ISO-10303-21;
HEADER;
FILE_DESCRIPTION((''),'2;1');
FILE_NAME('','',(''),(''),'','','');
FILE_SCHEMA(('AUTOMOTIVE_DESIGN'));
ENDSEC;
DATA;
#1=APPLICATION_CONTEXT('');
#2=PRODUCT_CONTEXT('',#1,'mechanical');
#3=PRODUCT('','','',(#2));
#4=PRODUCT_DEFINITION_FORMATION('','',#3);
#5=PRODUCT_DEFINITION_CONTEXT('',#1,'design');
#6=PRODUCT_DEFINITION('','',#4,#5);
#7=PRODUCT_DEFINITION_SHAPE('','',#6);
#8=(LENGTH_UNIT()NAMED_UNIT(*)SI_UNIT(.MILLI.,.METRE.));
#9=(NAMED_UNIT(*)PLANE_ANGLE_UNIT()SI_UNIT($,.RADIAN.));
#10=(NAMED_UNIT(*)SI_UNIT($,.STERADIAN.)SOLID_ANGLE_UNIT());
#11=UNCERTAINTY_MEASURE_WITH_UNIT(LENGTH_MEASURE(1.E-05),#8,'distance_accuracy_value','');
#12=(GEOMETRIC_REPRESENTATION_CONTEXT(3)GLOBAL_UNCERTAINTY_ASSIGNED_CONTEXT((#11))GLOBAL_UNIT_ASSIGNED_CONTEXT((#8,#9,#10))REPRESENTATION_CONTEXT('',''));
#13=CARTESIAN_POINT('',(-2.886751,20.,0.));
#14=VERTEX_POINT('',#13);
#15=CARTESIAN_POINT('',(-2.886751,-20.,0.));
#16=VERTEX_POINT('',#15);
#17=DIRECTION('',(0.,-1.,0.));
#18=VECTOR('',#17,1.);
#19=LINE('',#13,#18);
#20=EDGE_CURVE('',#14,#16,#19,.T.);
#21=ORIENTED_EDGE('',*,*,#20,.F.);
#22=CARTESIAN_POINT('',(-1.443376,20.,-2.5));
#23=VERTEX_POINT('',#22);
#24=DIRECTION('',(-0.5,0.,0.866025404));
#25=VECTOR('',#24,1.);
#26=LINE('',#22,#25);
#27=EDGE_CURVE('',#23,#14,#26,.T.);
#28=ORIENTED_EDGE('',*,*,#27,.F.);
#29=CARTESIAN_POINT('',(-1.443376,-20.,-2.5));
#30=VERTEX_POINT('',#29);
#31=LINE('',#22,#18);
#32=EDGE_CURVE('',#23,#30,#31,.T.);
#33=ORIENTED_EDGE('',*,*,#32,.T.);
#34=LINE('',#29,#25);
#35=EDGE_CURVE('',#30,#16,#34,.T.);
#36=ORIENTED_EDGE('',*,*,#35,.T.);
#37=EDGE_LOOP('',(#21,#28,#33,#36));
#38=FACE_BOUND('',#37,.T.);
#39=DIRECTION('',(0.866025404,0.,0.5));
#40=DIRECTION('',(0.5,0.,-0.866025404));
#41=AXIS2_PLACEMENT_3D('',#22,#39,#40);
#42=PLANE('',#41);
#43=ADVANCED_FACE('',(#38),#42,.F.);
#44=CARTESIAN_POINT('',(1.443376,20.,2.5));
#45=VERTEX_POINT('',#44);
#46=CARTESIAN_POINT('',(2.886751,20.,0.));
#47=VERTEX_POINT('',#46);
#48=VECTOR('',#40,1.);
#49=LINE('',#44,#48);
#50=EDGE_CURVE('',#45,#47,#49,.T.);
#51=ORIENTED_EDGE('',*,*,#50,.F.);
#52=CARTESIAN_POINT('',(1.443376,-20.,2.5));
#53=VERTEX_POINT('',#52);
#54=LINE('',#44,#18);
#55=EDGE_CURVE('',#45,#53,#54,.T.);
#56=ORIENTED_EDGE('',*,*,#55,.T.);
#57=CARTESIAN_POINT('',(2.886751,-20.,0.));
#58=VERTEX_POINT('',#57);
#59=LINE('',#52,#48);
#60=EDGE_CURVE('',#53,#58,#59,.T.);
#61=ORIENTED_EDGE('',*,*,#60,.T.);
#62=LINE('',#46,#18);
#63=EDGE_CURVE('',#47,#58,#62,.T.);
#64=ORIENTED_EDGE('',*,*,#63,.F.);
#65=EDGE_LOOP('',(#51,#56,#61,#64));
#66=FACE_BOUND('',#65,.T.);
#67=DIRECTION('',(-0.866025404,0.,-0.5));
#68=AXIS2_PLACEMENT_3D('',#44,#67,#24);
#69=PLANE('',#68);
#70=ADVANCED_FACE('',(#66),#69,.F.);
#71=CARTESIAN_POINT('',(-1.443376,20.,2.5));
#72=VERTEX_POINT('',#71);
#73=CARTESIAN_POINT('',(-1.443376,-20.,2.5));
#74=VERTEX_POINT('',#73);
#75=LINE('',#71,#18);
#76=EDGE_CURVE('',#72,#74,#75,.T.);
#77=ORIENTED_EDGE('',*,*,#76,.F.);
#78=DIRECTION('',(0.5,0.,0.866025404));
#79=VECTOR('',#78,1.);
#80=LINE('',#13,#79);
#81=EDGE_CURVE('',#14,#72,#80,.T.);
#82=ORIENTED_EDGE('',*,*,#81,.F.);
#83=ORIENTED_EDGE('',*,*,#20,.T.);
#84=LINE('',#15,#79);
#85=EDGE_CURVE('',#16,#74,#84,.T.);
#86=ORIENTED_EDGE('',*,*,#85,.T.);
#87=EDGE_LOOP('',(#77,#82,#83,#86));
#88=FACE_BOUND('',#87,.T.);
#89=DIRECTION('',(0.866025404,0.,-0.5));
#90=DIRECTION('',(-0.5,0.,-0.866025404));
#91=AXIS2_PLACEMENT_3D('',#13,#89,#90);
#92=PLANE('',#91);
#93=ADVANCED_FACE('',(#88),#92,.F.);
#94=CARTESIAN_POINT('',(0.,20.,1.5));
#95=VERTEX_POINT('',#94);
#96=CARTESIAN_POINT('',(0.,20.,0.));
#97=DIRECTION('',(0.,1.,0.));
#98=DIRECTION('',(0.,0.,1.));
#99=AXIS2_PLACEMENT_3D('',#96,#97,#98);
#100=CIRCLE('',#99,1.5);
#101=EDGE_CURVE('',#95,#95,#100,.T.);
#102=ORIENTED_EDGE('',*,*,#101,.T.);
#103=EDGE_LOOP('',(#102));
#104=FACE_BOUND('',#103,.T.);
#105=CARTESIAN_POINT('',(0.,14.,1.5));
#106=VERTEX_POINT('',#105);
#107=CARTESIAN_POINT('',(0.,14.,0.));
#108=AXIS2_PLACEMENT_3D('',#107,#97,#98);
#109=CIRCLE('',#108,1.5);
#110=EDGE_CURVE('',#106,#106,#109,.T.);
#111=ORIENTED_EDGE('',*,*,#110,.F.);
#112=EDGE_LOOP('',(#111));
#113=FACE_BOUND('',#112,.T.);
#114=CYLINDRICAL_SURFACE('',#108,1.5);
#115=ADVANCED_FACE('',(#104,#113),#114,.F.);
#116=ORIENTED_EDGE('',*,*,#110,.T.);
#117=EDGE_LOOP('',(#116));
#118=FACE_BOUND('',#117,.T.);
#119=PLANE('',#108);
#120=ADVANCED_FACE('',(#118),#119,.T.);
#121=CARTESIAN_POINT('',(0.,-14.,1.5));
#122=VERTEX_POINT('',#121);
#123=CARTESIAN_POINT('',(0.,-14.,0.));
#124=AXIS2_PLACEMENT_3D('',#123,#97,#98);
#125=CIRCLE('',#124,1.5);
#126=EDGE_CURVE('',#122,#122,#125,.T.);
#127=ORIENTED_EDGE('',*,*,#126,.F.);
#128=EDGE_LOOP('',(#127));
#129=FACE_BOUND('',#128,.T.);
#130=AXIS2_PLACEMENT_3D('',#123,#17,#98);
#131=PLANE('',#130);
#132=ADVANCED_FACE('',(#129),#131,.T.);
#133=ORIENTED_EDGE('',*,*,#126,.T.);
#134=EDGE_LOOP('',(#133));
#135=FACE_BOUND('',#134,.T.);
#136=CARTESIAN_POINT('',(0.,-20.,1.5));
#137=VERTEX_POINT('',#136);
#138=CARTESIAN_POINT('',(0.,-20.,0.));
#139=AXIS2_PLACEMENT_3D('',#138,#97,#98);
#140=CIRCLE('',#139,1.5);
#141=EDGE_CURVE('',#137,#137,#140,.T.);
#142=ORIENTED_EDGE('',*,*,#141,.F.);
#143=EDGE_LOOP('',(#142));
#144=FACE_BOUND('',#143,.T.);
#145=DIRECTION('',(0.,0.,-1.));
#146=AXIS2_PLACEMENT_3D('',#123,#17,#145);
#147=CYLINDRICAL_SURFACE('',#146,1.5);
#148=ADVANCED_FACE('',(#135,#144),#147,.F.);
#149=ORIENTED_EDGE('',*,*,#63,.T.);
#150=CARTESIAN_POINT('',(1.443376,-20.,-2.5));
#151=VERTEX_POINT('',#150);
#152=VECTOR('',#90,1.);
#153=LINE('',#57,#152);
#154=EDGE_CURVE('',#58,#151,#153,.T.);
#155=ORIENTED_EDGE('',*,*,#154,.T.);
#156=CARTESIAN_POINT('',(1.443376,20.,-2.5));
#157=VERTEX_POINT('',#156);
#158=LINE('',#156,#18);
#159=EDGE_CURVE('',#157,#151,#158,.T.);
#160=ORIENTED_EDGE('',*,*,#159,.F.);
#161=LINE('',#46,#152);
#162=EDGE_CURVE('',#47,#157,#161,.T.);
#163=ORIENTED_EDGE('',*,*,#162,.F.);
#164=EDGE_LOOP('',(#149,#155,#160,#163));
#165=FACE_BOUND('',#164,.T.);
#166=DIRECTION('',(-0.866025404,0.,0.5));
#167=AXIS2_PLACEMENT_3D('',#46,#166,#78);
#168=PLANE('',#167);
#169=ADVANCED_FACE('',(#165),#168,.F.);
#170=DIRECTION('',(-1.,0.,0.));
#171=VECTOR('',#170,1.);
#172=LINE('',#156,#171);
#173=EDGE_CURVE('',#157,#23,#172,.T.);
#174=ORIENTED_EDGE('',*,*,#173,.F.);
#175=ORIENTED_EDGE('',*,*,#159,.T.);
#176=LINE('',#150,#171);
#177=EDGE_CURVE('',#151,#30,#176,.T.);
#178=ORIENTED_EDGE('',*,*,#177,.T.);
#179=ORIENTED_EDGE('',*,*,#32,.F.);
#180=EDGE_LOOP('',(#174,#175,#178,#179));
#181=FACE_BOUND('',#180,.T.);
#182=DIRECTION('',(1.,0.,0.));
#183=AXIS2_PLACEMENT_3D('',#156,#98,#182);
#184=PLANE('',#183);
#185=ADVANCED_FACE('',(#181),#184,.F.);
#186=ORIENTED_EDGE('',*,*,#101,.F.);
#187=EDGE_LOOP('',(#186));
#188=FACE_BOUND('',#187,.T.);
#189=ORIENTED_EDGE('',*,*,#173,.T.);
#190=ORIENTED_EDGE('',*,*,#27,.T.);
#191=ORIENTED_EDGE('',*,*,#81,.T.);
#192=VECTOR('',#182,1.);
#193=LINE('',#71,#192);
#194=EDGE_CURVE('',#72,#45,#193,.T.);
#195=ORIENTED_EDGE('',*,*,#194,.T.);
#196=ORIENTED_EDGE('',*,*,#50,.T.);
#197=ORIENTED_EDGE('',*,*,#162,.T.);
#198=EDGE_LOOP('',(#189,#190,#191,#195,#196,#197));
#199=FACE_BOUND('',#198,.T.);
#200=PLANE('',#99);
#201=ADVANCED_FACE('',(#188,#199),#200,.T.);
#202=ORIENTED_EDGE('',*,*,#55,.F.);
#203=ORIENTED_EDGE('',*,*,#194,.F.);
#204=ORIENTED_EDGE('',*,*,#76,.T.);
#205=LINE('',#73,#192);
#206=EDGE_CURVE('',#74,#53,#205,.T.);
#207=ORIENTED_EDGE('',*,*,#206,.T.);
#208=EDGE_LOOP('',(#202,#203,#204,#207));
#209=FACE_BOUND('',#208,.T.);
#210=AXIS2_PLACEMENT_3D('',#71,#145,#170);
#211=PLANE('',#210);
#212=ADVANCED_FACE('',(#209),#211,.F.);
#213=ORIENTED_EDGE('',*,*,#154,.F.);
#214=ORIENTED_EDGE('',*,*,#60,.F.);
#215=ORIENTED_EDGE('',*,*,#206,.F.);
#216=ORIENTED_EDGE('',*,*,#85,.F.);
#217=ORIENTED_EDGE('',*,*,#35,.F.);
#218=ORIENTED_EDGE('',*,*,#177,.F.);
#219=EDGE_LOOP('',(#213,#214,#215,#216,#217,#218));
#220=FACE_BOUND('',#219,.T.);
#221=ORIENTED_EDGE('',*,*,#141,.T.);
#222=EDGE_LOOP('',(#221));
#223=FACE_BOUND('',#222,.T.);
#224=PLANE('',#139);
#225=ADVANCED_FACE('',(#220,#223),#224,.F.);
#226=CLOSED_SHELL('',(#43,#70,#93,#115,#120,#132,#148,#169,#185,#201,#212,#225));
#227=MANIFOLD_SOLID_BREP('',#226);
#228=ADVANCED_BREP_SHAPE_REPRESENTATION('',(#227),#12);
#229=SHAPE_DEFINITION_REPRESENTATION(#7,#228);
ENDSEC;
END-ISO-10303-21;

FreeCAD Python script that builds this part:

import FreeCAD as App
import Part
import Sketcher
Q = App.Units.Quantity

doc = App.newDocument("Part")
params = doc.addObject("Spreadsheet::Sheet", "Params")
for row, (alias, value) in enumerate([
    ("pad1_length", "40 mm"),
    ("sketch2_diameter", "3 mm"),
    ("pocket1_length", "6 mm"),
    ("sketch3_diameter", "3 mm"),
    ("pocket2_length", "6 mm"),
], start=1):
    params.set(f"A{row}", alias)
    params.set(f"B{row}", "=" + value)
    params.setAlias(f"B{row}", alias)

body = doc.addObject("PartDesign::Body", "Body")

sketch1 = doc.addObject("Sketcher::SketchObject", "Sketch")
body.addObject(sketch1)
sketch1.AttachmentSupport = (doc.XZ_Plane, [""])
sketch1.MapMode = "FlatFace"
sketch1.addGeometry(Part.LineSegment(App.Vector(2.9, 0, 0), App.Vector(1.4, -2.5, 0)), False)
sketch1.addGeometry(Part.LineSegment(App.Vector(1.4, -2.5, 0), App.Vector(-1.4, -2.5, 0)), False)
sketch1.addGeometry(Part.LineSegment(App.Vector(-1.4, -2.5, 0), App.Vector(-2.9, 0, 0)), False)
sketch1.addGeometry(Part.LineSegment(App.Vector(-2.9, 0, 0), App.Vector(-1.4, 2.5, 0)), False)
sketch1.addGeometry(Part.LineSegment(App.Vector(-1.4, 2.5, 0), App.Vector(1.4, 2.5, 0)), False)
sketch1.addGeometry(Part.LineSegment(App.Vector(1.4, 2.5, 0), App.Vector(2.9, 0, 0)), False)
sketch1.addConstraint(Sketcher.Constraint("Coincident", 0, 2, 1, 1))
sketch1.addConstraint(Sketcher.Constraint("Coincident", 1, 2, 2, 1))
sketch1.addConstraint(Sketcher.Constraint("Coincident", 2, 2, 3, 1))
sketch1.addConstraint(Sketcher.Constraint("Coincident", 3, 2, 4, 1))
sketch1.addConstraint(Sketcher.Constraint("Coincident", 4, 2, 5, 1))
sketch1.addConstraint(Sketcher.Constraint("Coincident", 5, 2, 0, 1))
sketch1.addConstraint(Sketcher.Constraint("Horizontal", 1))
sketch1.addConstraint(Sketcher.Constraint("Horizontal", 4))
sketch1.addConstraint(Sketcher.Constraint("Symmetric", 0, 2, 3, 2, -1, 1))
sketch1.addConstraint(Sketcher.Constraint("Symmetric", 2, 2, 5, 2, -1, 1))
sketch1.addConstraint(Sketcher.Constraint("PointOnObject", 2, 2, -1))
sketch1.addConstraint(Sketcher.Constraint("Parallel", 2, 5))
sketch1.addConstraint(Sketcher.Constraint("Vertical", 1, 2, 3, 2))
sketch1.addConstraint(Sketcher.Constraint("Angle", 0, Q("-120 deg")))
sketch1.addConstraint(Sketcher.Constraint("DistanceY", 1, 2, 3, 2, Q("5 mm")))
sketch1.addConstraint(Sketcher.Constraint("DistanceX", 1, 2, 1, 1, Q("2.886751 mm")))
pad1 = doc.addObject("PartDesign::Pad", "Pad")
body.addObject(pad1)
pad1.Profile = sketch1
pad1.setExpression("Length", "Params.pad1_length")
pad1.Midplane = True

sketch2 = doc.addObject("Sketcher::SketchObject", "Sketch001")
body.addObject(sketch2)
sketch2.AttachmentSupport = (doc.XZ_Plane, [""])
sketch2.MapMode = "FlatFace"
sketch2.AttachmentOffset = App.Placement(App.Vector(0, 0, -20), App.Rotation())
sketch2.addGeometry(Part.Circle(App.Vector(0, 0, 0), App.Vector(0, 0, 1), 1.5), False)
sketch2.addConstraint(Sketcher.Constraint("Coincident", 0, 3, -1, 1))
sketch2.addConstraint(Sketcher.Constraint("Diameter", 0, Q("3 mm")))
sketch2.setExpression("Constraints[1]", "Params.sketch2_diameter")
pocket1 = doc.addObject("PartDesign::Pocket", "Pocket")
body.addObject(pocket1)
pocket1.Profile = sketch2
pocket1.setExpression("Length", "Params.pocket1_length")
pocket1.Reversed = True
doc.recompute()

mirrored = doc.addObject("PartDesign::Mirrored", "Mirrored")
body.addObject(mirrored)
mirrored.Originals = [pocket1]
mirrored.MirrorPlane = (doc.YZ_Plane, [""])
body.Tip = mirrored
doc.recompute()

mirrored2 = doc.addObject("PartDesign::Mirrored", "Mirrored001")
body.addObject(mirrored2)
mirrored2.Originals = [pocket1]
mirrored2.MirrorPlane = (doc.XZ_Plane, [""])
body.Tip = mirrored2

sketch3 = doc.addObject("Sketcher::SketchObject", "Sketch002")
body.addObject(sketch3)
sketch3.AttachmentSupport = (doc.XZ_Plane, [""])
sketch3.MapMode = "FlatFace"
sketch3.AttachmentOffset = App.Placement(App.Vector(0, 0, 20), App.Rotation())
sketch3.addGeometry(Part.Circle(App.Vector(0, 0, 0), App.Vector(0, 0, 1), 1.5), False)
sketch3.addConstraint(Sketcher.Constraint("Coincident", 0, 3, -1, 1))
sketch3.addConstraint(Sketcher.Constraint("Diameter", 0, Q("3 mm")))
sketch3.setExpression("Constraints[1]", "Params.sketch3_diameter")
pocket2 = doc.addObject("PartDesign::Pocket", "Pocket001")
body.addObject(pocket2)
pocket2.Profile = sketch3
pocket2.setExpression("Length", "Params.pocket2_length")

doc.recompute()
